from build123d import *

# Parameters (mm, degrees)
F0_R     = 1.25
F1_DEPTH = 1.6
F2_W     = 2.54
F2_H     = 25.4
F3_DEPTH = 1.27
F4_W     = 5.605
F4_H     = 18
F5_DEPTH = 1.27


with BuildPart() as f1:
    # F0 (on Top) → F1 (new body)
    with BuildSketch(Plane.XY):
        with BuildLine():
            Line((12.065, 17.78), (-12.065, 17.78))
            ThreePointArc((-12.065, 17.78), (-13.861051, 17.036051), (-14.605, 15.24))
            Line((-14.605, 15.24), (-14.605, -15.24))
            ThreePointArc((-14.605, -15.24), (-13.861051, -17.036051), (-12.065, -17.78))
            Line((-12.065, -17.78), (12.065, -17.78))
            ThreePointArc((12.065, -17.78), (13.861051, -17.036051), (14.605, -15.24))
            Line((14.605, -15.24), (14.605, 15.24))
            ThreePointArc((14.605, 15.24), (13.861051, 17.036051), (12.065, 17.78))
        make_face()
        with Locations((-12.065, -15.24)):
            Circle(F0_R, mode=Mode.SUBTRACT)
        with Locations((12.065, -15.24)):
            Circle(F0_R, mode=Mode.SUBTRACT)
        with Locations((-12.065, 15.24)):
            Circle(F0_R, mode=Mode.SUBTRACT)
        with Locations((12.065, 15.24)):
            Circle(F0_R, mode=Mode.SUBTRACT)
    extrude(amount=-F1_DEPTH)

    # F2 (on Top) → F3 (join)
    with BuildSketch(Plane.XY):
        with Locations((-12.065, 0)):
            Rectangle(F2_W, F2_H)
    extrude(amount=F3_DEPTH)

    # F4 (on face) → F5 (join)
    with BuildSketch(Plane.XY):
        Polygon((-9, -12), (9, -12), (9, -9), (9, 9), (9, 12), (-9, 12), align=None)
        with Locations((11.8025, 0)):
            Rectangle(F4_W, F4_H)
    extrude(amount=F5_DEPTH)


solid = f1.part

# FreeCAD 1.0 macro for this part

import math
import FreeCAD as App
import Part
import Sketcher
Q = App.Units.Quantity


def add_polygon(sketch, points):
    """Adds a closed chain of lines whose ends are joined by coincident constraints."""
    first, n = sketch.GeometryCount, len(points)
    for a, b in zip(points, points[1:] + points[:1]):
        sketch.addGeometry(Part.LineSegment(App.Vector(*a, 0), App.Vector(*b, 0)), False)
    for i in range(n):
        sketch.addConstraint(Sketcher.Constraint("Coincident", first + i, 2, first + (i + 1) % n, 1))

doc = App.newDocument("Part")
body = doc.addObject("PartDesign::Body", "Body")

# Sketch on XY plane
sketch1 = body.newObject("Sketcher::SketchObject", "Sketch")
sketch1.AttachmentSupport = (doc.getObject("XY_Plane"), [""])
sketch1.MapMode = "FlatFace"
sketch1.addGeometry([
    Part.LineSegment(App.Vector(12.1, 17.8, 0), App.Vector(-12.1, 17.8, 0)),  # 0
    Part.ArcOfCircle(Part.Circle(App.Vector(-12.1, 15.2, 0), App.Vector(0, 0, 1), 2.5), math.radians(90), math.radians(180)),  # 1
    Part.LineSegment(App.Vector(-14.6, 15.2, 0), App.Vector(-14.6, -15.2, 0)),  # 2
    Part.ArcOfCircle(Part.Circle(App.Vector(-12.1, -15.2, 0), App.Vector(0, 0, 1), 2.5), math.radians(-180), math.radians(-90)),  # 3
    Part.LineSegment(App.Vector(-12.1, -17.8, 0), App.Vector(12.1, -17.8, 0)),  # 4
    Part.ArcOfCircle(Part.Circle(App.Vector(12.1, -15.2, 0), App.Vector(0, 0, 1), 2.5), math.radians(-90), math.radians(0)),  # 5
    Part.LineSegment(App.Vector(14.6, -15.2, 0), App.Vector(14.6, 15.2, 0)),  # 6
    Part.ArcOfCircle(Part.Circle(App.Vector(12.1, 15.2, 0), App.Vector(0, 0, 1), 2.5), math.radians(0), math.radians(90)),  # 7
    Part.Circle(App.Vector(-12.1, -15.2, 0), App.Vector(0, 0, 1), 1.2),  # 8
    Part.Circle(App.Vector(12.1, -15.2, 0), App.Vector(0, 0, 1), 1.2),  # 9
    Part.Circle(App.Vector(-12.1, 15.2, 0), App.Vector(0, 0, 1), 1.2),  # 10
    Part.Circle(App.Vector(12.1, 15.2, 0), App.Vector(0, 0, 1), 1.2),  # 11
], False)
sketch1.addConstraint([
    Sketcher.Constraint("Tangent", 0, 2, 1, 1),
    Sketcher.Constraint("Tangent", 1, 2, 2, 1),
    Sketcher.Constraint("Tangent", 2, 2, 3, 1),
    Sketcher.Constraint("Tangent", 3, 2, 4, 1),
    Sketcher.Constraint("Tangent", 4, 2, 5, 1),
    Sketcher.Constraint("Tangent", 5, 2, 6, 1),
    Sketcher.Constraint("Tangent", 6, 2, 7, 1),
    Sketcher.Constraint("Tangent", 7, 2, 0, 1),
    Sketcher.Constraint("Horizontal", 0),
    Sketcher.Constraint("Vertical", 2),
    Sketcher.Constraint("Horizontal", 4),
    Sketcher.Constraint("Vertical", 6),
    Sketcher.Constraint("Coincident", 8, 3, 3, 3),
    Sketcher.Constraint("Coincident", 9, 3, 5, 3),
    Sketcher.Constraint("Coincident", 10, 3, 1, 3),
    Sketcher.Constraint("Coincident", 11, 3, 7, 3),
    Sketcher.Constraint("Equal", 1, 3),
    Sketcher.Constraint("Equal", 3, 5),
    Sketcher.Constraint("Equal", 5, 7),
    Sketcher.Constraint("Equal", 8, 9),
    Sketcher.Constraint("Equal", 9, 10),
    Sketcher.Constraint("Equal", 10, 11),
    Sketcher.Constraint("Symmetric", 1, 3, 5, 3, -1, 1),
    Sketcher.Constraint("Radius", 1, Q("0.1 in")),
    Sketcher.Constraint("DistanceY", 2, 2, 2, 1, Q("1.2 in")),
    Sketcher.Constraint("DistanceX", 0, 2, 0, 1, Q("0.95 in")),
    Sketcher.Constraint("Diameter", 8, 2.5),
])
pad1 = body.newObject("PartDesign::Pad", "Pad")
pad1.Profile = sketch1
pad1.Length = 1.6
pad1.Reversed = True

# Sketch on XY plane
sketch2 = body.newObject("Sketcher::SketchObject", "Sketch001")
sketch2.AttachmentSupport = (doc.getObject("XY_Plane"), [""])
sketch2.MapMode = "FlatFace"
add_polygon(sketch2, [(-13.3, 12.7), (-13.3, -12.7), (-10.8, -12.7), (-10.8, 12.7)])  # lines 0-3
sketch2.addConstraint([
    Sketcher.Constraint("Vertical", 0),
    Sketcher.Constraint("Horizontal", 1),
    Sketcher.Constraint("Vertical", 2),
    Sketcher.Constraint("Horizontal", 3),
    Sketcher.Constraint("DistanceY", 0, 2, 0, 1, Q("1 in")),
    Sketcher.Constraint("DistanceX", 1, 1, 1, 2, Q("0.1 in")),
    Sketcher.Constraint("DistanceY", 0, 2, -1, 1, Q("0.5 in")),
    Sketcher.Constraint("DistanceX", 0, 2, -1, 1, Q("0.525 in")),
])
pad2 = body.newObject("PartDesign::Pad", "Pad001")
pad2.Profile = sketch2
pad2.Length = Q("0.05 in")

# Sketch on XY plane
sketch3 = body.newObject("Sketcher::SketchObject", "Sketch002")
sketch3.AttachmentSupport = (doc.getObject("XY_Plane"), [""])
sketch3.MapMode = "FlatFace"
add_polygon(sketch3, [(-9, -12), (9, -12), (9, -9), (14.6, -9), (14.6, 9), (9, 9), (9, 12), (-9, 12)])  # lines 0-7
sketch3.addConstraint([
    Sketcher.Constraint("Horizontal", 0),
    Sketcher.Constraint("Vertical", 1),
    Sketcher.Constraint("Horizontal", 2),
    Sketcher.Constraint("Vertical", 3),
    Sketcher.Constraint("Horizontal", 4),
    Sketcher.Constraint("Vertical", 5),
    Sketcher.Constraint("Horizontal", 6),
    Sketcher.Constraint("Vertical", 7),
    Sketcher.Constraint("Symmetric", 0, 2, 6, 2, -1, 1),
    Sketcher.Constraint("Symmetric", 1, 2, 4, 2, -1),
    Sketcher.Constraint("Equal", 6, 3),
    Sketcher.Constraint("DistanceX", -1, 1, 2, 2, Q("0.575 in")),
    Sketcher.Constraint("DistanceX", 0, 1, 0, 2, 18.0),
    Sketcher.Constraint("DistanceY", 1, 1, 1, 2, 3.0),
])
pad3 = body.newObject("PartDesign::Pad", "Pad002")
pad3.Profile = sketch3
pad3.Length = Q("0.05 in")

doc.recompute()
